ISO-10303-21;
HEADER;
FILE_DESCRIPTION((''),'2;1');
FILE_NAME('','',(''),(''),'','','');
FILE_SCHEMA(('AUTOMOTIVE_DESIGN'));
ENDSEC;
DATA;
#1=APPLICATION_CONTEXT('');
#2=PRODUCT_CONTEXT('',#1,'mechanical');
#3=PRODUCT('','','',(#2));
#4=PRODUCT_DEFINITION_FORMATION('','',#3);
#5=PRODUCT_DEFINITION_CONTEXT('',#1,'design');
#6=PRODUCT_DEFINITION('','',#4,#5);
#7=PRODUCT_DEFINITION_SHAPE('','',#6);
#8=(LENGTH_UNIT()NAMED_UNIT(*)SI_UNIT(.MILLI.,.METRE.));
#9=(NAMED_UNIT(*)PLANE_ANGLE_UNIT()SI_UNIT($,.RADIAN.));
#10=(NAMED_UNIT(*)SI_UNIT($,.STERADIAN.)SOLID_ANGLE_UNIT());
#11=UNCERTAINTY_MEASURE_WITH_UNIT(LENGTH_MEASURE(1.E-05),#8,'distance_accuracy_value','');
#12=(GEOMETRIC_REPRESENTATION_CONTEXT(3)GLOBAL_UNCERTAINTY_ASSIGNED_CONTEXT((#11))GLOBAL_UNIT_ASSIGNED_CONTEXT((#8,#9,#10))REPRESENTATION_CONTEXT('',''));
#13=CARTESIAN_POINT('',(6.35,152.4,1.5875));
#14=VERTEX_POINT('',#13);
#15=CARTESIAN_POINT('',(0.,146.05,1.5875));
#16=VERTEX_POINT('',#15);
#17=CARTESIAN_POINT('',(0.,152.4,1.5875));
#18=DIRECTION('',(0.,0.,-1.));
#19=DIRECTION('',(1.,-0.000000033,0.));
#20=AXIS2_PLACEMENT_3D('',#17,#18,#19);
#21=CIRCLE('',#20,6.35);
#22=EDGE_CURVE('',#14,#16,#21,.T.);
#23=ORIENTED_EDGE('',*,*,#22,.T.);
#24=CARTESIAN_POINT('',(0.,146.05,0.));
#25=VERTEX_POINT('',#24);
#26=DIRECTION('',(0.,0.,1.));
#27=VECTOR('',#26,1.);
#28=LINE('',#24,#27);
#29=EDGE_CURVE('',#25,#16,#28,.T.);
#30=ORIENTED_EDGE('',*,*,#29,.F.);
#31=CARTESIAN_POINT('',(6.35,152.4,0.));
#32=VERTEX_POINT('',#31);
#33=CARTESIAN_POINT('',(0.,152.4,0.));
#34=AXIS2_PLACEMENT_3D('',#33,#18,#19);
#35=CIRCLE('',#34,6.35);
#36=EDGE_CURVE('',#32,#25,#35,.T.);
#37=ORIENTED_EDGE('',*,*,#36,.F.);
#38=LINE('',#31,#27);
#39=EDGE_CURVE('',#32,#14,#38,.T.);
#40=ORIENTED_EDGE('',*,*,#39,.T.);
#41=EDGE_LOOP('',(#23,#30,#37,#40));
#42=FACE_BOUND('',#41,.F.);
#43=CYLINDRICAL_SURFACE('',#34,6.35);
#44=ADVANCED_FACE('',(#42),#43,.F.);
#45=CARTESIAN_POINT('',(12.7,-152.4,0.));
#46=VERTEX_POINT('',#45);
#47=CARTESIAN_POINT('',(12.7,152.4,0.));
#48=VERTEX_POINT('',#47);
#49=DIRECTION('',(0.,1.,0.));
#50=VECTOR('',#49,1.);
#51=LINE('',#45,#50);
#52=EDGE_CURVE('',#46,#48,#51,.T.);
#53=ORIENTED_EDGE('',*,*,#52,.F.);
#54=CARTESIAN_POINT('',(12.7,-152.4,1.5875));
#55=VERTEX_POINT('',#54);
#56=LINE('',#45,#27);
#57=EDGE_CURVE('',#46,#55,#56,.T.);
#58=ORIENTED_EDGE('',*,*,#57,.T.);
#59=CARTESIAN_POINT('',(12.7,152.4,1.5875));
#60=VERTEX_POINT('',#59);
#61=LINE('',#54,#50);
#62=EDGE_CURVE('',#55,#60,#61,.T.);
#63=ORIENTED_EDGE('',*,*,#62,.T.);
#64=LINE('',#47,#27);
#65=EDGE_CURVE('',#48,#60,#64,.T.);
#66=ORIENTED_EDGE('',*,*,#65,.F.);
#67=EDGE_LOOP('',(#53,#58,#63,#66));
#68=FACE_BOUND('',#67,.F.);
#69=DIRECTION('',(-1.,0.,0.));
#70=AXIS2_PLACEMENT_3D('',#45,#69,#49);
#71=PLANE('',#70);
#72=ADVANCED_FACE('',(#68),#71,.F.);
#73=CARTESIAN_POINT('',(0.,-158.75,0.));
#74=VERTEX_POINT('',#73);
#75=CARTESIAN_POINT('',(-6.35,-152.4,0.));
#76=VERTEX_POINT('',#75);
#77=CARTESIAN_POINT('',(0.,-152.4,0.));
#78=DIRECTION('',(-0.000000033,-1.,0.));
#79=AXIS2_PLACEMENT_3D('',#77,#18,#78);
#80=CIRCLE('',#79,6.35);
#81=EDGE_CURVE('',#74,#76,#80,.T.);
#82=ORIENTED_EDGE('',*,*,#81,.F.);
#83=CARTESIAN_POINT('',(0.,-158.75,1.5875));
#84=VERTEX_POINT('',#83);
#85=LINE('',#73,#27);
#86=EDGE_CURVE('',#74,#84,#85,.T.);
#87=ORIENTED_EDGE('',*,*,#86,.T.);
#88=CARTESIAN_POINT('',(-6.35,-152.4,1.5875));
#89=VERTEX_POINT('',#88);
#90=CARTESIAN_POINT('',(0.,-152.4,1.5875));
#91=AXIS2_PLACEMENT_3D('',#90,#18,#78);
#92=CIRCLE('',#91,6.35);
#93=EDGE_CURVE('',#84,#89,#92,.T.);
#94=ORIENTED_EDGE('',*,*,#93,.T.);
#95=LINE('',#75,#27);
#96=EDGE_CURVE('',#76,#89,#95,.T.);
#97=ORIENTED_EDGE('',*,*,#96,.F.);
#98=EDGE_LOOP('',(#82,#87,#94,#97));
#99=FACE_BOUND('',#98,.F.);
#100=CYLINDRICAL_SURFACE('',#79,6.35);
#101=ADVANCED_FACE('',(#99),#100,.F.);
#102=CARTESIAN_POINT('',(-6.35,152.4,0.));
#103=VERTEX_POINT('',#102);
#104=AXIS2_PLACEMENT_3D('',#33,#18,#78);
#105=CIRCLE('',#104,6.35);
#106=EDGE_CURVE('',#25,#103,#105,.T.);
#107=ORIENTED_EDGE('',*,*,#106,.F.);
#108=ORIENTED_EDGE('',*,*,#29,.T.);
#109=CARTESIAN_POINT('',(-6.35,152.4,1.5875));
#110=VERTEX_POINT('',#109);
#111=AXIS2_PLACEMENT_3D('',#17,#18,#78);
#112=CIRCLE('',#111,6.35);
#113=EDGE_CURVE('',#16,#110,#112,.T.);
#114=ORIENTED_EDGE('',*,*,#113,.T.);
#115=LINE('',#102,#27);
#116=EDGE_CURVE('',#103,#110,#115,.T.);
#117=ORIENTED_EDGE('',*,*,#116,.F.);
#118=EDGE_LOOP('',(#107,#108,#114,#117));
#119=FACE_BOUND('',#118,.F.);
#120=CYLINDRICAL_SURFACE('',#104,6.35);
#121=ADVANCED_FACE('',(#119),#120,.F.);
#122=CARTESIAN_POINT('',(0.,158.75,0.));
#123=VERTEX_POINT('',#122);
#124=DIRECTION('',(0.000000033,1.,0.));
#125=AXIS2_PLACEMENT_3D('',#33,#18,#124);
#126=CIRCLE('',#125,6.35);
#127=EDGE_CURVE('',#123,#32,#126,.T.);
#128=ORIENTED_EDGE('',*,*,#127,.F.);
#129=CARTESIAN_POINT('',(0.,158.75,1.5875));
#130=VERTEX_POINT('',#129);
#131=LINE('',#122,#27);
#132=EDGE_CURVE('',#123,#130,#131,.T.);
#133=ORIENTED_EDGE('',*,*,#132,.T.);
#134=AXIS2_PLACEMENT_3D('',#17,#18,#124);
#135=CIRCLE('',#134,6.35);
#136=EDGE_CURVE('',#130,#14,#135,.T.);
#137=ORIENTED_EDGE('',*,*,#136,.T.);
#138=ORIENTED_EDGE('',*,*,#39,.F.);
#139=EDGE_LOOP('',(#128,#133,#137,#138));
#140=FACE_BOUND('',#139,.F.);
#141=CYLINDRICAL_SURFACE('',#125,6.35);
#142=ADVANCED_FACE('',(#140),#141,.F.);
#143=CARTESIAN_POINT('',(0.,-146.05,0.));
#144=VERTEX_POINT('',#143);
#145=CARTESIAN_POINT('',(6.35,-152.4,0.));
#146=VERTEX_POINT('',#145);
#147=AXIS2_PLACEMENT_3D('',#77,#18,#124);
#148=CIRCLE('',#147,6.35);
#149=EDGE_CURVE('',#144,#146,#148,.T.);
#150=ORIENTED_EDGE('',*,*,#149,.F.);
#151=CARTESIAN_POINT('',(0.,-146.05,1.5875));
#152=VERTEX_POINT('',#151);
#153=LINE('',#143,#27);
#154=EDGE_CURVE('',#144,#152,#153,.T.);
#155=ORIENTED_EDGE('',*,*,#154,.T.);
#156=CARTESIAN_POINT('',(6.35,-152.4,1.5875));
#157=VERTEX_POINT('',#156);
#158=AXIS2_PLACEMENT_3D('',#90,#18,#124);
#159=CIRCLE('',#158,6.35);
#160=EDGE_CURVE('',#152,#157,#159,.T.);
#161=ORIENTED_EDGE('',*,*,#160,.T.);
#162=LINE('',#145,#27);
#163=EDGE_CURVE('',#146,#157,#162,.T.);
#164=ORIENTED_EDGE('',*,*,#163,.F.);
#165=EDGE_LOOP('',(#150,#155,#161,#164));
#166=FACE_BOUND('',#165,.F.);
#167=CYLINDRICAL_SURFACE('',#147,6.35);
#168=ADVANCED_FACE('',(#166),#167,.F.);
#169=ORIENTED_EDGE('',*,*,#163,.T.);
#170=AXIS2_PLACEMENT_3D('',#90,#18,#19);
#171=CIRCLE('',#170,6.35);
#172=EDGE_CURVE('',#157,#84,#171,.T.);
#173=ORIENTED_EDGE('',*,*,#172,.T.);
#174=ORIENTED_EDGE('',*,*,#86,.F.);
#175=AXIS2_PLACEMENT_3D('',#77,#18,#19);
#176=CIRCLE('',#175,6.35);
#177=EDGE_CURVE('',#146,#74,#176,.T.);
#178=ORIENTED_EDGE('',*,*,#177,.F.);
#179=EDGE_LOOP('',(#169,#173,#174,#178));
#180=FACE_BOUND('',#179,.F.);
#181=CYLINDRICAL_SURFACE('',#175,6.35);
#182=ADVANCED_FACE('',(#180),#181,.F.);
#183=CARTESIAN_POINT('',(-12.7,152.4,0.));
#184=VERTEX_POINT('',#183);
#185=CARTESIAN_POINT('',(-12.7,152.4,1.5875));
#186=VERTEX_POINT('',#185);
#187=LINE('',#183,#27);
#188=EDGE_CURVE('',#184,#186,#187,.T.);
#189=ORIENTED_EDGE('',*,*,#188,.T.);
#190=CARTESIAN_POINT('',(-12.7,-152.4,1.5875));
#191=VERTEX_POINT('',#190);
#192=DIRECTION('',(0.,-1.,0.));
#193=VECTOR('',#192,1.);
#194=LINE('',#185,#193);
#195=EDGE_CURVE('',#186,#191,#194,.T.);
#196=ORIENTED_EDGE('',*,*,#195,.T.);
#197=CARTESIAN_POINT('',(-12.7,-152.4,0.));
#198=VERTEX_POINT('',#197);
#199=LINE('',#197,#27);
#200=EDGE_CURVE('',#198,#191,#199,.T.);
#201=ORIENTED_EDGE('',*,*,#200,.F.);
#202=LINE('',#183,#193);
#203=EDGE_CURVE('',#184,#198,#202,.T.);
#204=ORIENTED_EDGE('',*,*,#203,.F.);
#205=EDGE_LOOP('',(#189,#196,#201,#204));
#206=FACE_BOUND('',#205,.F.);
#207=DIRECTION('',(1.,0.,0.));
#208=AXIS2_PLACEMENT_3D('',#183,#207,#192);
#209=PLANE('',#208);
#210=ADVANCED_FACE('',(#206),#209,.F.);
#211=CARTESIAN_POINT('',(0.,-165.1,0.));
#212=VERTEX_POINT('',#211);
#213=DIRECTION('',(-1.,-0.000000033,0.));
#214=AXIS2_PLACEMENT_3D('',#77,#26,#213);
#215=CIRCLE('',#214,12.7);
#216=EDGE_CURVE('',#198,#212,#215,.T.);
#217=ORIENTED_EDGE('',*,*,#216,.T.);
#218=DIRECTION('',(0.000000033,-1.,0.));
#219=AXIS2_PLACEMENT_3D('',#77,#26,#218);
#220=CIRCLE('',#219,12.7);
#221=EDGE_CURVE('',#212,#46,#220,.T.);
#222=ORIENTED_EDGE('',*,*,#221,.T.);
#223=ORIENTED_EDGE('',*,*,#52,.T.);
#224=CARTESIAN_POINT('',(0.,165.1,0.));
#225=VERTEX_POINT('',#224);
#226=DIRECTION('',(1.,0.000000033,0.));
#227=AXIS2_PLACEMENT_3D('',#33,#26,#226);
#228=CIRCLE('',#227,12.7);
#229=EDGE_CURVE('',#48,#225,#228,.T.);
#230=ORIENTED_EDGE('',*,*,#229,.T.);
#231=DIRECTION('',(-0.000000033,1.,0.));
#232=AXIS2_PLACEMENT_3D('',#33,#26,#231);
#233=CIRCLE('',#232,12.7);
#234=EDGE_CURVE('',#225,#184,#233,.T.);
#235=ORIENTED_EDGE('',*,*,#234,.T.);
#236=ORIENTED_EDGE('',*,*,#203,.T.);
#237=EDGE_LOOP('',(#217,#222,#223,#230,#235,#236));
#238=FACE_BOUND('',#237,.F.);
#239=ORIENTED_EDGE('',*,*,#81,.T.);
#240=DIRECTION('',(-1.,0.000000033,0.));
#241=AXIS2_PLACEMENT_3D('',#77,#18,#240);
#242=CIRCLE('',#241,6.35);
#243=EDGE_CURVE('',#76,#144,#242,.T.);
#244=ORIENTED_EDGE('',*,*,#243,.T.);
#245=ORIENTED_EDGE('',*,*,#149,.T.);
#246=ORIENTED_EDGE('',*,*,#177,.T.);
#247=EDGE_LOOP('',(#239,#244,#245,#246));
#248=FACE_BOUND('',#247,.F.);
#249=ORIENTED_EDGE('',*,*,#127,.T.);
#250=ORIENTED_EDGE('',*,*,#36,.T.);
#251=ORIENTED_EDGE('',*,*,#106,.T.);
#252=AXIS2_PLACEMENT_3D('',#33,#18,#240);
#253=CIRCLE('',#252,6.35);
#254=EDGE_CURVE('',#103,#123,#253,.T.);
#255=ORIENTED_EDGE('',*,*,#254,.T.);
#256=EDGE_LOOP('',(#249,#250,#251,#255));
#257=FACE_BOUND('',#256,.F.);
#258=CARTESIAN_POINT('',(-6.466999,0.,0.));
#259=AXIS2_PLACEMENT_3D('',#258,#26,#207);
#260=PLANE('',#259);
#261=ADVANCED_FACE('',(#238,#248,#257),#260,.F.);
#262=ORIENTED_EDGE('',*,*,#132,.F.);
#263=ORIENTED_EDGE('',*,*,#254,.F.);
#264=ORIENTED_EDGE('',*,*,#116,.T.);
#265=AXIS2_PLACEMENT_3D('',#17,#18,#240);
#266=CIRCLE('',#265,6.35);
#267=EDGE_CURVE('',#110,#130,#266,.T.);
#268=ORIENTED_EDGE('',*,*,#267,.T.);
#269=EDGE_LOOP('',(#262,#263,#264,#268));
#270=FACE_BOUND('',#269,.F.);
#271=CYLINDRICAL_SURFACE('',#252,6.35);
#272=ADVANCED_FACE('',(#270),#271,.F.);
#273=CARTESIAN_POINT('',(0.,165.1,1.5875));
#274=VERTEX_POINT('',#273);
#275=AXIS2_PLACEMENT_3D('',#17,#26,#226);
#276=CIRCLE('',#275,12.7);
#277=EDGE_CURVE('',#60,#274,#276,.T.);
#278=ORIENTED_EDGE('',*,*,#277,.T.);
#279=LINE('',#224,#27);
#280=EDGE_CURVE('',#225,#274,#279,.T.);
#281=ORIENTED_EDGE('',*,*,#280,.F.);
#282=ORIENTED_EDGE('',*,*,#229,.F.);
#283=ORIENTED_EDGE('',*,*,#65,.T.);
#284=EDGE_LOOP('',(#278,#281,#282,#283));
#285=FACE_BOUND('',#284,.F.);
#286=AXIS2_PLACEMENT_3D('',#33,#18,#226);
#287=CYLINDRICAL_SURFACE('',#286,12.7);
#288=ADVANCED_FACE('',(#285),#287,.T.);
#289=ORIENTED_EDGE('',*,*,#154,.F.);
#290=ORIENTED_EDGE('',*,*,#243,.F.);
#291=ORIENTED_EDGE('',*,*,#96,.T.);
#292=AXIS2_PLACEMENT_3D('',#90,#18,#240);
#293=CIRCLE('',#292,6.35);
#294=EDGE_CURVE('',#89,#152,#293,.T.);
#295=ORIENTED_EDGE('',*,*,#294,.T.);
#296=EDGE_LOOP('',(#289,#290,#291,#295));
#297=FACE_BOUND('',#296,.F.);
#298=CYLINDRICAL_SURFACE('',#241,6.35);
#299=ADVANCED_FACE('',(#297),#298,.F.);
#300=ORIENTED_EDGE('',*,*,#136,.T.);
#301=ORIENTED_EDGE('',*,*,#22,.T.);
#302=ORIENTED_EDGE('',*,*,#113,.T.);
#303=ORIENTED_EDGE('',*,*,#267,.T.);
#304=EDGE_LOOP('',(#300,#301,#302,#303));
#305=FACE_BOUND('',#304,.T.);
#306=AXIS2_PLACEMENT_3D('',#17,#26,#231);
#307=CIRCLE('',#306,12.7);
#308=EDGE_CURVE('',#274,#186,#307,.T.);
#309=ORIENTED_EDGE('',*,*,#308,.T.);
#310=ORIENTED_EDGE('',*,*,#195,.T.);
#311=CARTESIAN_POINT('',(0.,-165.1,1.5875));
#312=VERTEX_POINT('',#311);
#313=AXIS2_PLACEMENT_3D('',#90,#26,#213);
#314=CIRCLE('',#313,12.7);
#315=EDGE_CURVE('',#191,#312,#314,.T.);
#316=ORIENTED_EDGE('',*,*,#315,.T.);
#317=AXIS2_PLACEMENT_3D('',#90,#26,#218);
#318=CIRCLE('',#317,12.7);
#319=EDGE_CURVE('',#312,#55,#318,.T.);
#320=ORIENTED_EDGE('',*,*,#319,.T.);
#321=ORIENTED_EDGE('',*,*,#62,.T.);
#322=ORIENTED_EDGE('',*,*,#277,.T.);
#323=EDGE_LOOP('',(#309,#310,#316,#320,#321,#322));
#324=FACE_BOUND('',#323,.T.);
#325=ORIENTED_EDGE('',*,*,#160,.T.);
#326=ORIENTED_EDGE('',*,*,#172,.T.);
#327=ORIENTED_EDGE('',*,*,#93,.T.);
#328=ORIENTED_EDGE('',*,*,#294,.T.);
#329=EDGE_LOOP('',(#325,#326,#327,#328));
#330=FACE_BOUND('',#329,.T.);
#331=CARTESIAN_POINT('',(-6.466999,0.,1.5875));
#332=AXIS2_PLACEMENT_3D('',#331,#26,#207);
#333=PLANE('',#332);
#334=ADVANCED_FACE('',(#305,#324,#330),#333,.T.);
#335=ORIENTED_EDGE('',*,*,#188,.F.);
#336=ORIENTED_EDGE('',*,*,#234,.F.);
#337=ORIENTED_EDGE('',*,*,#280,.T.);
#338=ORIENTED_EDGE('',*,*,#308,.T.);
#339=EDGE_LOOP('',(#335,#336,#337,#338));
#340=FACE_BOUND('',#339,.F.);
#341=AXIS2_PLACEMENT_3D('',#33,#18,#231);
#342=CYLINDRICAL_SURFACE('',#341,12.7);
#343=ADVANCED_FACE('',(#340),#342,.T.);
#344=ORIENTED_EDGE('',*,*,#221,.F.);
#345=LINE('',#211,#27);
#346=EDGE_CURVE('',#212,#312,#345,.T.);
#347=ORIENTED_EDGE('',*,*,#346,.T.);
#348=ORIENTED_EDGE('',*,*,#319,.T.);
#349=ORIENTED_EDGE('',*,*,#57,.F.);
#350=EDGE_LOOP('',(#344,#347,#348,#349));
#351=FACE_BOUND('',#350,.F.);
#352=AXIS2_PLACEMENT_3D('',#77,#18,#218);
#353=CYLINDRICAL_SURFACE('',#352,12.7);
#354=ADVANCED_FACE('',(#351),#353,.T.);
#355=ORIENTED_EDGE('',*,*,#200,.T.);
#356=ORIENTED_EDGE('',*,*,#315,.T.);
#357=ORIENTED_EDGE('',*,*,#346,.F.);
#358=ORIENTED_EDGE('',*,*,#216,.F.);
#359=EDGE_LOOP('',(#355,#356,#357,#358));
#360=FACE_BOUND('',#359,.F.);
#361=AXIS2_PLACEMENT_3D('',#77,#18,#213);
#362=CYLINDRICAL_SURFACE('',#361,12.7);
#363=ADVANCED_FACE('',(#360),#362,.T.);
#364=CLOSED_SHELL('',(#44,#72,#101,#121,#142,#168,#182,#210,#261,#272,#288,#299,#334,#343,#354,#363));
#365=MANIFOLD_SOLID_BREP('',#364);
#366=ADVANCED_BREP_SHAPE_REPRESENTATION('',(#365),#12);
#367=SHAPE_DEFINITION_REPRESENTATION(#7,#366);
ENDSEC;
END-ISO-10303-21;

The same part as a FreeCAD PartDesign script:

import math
import FreeCAD as App
import Part
import Sketcher
from FreeCAD import Vector
Q = App.Units.Quantity

doc = App.newDocument("Part")
params = doc.addObject("Spreadsheet::Sheet", "Params")
for row, (alias, value) in enumerate([
    ("sketch1_radius", "0.5 in"),
    ("sketch1_height", "12 in"),
    ("sketch1_radius2", "0.25 in"),
    ("pad1_length", "0.0625 in"),
], start=1):
    params.set(f"A{row}", alias)
    params.set(f"B{row}", "=" + value)
    params.setAlias(f"B{row}", alias)

body = doc.addObject("PartDesign::Body", "Body")

sketch1 = body.newObject("Sketcher::SketchObject", "Sketch")
sketch1.AttachmentSupport = (doc.getObject("XY_Plane"), [""])
sketch1.MapMode = "FlatFace"
sketch1.addGeometry([
    Part.ArcOfCircle(Part.Circle(Vector(0, 152, 0), Vector(0, 0, 1), 13), math.radians(90), math.radians(180)),
    Part.LineSegment(Vector(-13, 152, 0), Vector(-13, -152, 0)),
    Part.ArcOfCircle(Part.Circle(Vector(0, -152, 0), Vector(0, 0, 1), 13), math.radians(-180), math.radians(-90)),
    Part.ArcOfCircle(Part.Circle(Vector(0, -152, 0), Vector(0, 0, 1), 13), math.radians(-90), math.radians(0)),
    Part.LineSegment(Vector(13, -152, 0), Vector(13, 152, 0)),
    Part.ArcOfCircle(Part.Circle(Vector(0, 152, 0), Vector(0, 0, 1), 13), math.radians(0), math.radians(90)),
    Part.ArcOfCircle(Part.Circle(Vector(0, 152, 0), Vector(0, 0, 1), 6), math.radians(-180), math.radians(-90)),
    Part.ArcOfCircle(Part.Circle(Vector(0, 152, 0), Vector(0, 0, 1), 6), math.radians(90), math.radians(180)),
    Part.ArcOfCircle(Part.Circle(Vector(0, 152, 0), Vector(0, 0, 1), 6), math.radians(0), math.radians(90)),
    Part.ArcOfCircle(Part.Circle(Vector(0, 152, 0), Vector(0, 0, 1), 6), math.radians(-90), math.radians(0)),
    Part.ArcOfCircle(Part.Circle(Vector(0, -152, 0), Vector(0, 0, 1), 6), math.radians(90), math.radians(180)),
    Part.ArcOfCircle(Part.Circle(Vector(0, -152, 0), Vector(0, 0, 1), 6), math.radians(0), math.radians(90)),
    Part.ArcOfCircle(Part.Circle(Vector(0, -152, 0), Vector(0, 0, 1), 6), math.radians(-90), math.radians(0)),
    Part.ArcOfCircle(Part.Circle(Vector(0, -152, 0), Vector(0, 0, 1), 6), math.radians(-180), math.radians(-90)),
], False)
sketch1.addConstraint([
    Sketcher.Constraint("Tangent", 0, 2, 1, 1),
    Sketcher.Constraint("Tangent", 1, 2, 2, 1),
    Sketcher.Constraint("Tangent", 2, 2, 3, 1),
    Sketcher.Constraint("Tangent", 3, 2, 4, 1),
    Sketcher.Constraint("Tangent", 4, 2, 5, 1),
    Sketcher.Constraint("Tangent", 5, 2, 0, 1),
    Sketcher.Constraint("Tangent", 6, 1, 7, 2),
    Sketcher.Constraint("Tangent", 7, 1, 8, 2),
    Sketcher.Constraint("Tangent", 8, 1, 9, 2),
    Sketcher.Constraint("Tangent", 9, 1, 6, 2),
    Sketcher.Constraint("Tangent", 10, 1, 11, 2),
    Sketcher.Constraint("Tangent", 11, 1, 12, 2),
    Sketcher.Constraint("Tangent", 12, 1, 13, 2),
    Sketcher.Constraint("Tangent", 13, 1, 10, 2),
    Sketcher.Constraint("Vertical", 1),
    Sketcher.Constraint("Vertical", 4),
    Sketcher.Constraint("Coincident", 6, 3, 0, 3),
    Sketcher.Constraint("Coincident", 10, 3, 2, 3),
    Sketcher.Constraint("Equal", 0, 2),
    Sketcher.Constraint("Equal", 2, 3),
    Sketcher.Constraint("Equal", 6, 7),
    Sketcher.Constraint("Equal", 9, 10),
    Sketcher.Constraint("Equal", 10, 11),
    Sketcher.Constraint("Symmetric", 0, 3, 2, 3, -1, 1),
    Sketcher.Constraint("PointOnObject", 2, 2, -2),
    Sketcher.Constraint("PointOnObject", 5, 2, -2),
    Sketcher.Constraint("PointOnObject", 7, 1, -2),
    Sketcher.Constraint("PointOnObject", 9, 1, -2),
    Sketcher.Constraint("PointOnObject", 10, 1, -2),
    Sketcher.Constraint("PointOnObject", 12, 1, -2),
    Sketcher.Constraint("Horizontal", 4, 2, 6, 1),
    Sketcher.Constraint("Horizontal", 6, 1, 8, 1),
    Sketcher.Constraint("Horizontal", 3, 2, 11, 1),
    Sketcher.Constraint("Horizontal", 11, 1, 13, 1),
    Sketcher.Constraint("Radius", 0, Q("0.5 in")),
    Sketcher.Constraint("DistanceY", 1, 2, 1, 1, Q("12 in")),
    Sketcher.Constraint("Radius", 6, Q("0.25 in")),
])
sketch1.setExpression("Constraints[34]", "Params.sketch1_radius")
sketch1.setExpression("Constraints[35]", "Params.sketch1_height")
sketch1.setExpression("Constraints[36]", "Params.sketch1_radius2")
pad1 = body.newObject("PartDesign::Pad", "Pad")
pad1.Profile = sketch1
pad1.setExpression("Length", "Params.pad1_length")

doc.recompute()
